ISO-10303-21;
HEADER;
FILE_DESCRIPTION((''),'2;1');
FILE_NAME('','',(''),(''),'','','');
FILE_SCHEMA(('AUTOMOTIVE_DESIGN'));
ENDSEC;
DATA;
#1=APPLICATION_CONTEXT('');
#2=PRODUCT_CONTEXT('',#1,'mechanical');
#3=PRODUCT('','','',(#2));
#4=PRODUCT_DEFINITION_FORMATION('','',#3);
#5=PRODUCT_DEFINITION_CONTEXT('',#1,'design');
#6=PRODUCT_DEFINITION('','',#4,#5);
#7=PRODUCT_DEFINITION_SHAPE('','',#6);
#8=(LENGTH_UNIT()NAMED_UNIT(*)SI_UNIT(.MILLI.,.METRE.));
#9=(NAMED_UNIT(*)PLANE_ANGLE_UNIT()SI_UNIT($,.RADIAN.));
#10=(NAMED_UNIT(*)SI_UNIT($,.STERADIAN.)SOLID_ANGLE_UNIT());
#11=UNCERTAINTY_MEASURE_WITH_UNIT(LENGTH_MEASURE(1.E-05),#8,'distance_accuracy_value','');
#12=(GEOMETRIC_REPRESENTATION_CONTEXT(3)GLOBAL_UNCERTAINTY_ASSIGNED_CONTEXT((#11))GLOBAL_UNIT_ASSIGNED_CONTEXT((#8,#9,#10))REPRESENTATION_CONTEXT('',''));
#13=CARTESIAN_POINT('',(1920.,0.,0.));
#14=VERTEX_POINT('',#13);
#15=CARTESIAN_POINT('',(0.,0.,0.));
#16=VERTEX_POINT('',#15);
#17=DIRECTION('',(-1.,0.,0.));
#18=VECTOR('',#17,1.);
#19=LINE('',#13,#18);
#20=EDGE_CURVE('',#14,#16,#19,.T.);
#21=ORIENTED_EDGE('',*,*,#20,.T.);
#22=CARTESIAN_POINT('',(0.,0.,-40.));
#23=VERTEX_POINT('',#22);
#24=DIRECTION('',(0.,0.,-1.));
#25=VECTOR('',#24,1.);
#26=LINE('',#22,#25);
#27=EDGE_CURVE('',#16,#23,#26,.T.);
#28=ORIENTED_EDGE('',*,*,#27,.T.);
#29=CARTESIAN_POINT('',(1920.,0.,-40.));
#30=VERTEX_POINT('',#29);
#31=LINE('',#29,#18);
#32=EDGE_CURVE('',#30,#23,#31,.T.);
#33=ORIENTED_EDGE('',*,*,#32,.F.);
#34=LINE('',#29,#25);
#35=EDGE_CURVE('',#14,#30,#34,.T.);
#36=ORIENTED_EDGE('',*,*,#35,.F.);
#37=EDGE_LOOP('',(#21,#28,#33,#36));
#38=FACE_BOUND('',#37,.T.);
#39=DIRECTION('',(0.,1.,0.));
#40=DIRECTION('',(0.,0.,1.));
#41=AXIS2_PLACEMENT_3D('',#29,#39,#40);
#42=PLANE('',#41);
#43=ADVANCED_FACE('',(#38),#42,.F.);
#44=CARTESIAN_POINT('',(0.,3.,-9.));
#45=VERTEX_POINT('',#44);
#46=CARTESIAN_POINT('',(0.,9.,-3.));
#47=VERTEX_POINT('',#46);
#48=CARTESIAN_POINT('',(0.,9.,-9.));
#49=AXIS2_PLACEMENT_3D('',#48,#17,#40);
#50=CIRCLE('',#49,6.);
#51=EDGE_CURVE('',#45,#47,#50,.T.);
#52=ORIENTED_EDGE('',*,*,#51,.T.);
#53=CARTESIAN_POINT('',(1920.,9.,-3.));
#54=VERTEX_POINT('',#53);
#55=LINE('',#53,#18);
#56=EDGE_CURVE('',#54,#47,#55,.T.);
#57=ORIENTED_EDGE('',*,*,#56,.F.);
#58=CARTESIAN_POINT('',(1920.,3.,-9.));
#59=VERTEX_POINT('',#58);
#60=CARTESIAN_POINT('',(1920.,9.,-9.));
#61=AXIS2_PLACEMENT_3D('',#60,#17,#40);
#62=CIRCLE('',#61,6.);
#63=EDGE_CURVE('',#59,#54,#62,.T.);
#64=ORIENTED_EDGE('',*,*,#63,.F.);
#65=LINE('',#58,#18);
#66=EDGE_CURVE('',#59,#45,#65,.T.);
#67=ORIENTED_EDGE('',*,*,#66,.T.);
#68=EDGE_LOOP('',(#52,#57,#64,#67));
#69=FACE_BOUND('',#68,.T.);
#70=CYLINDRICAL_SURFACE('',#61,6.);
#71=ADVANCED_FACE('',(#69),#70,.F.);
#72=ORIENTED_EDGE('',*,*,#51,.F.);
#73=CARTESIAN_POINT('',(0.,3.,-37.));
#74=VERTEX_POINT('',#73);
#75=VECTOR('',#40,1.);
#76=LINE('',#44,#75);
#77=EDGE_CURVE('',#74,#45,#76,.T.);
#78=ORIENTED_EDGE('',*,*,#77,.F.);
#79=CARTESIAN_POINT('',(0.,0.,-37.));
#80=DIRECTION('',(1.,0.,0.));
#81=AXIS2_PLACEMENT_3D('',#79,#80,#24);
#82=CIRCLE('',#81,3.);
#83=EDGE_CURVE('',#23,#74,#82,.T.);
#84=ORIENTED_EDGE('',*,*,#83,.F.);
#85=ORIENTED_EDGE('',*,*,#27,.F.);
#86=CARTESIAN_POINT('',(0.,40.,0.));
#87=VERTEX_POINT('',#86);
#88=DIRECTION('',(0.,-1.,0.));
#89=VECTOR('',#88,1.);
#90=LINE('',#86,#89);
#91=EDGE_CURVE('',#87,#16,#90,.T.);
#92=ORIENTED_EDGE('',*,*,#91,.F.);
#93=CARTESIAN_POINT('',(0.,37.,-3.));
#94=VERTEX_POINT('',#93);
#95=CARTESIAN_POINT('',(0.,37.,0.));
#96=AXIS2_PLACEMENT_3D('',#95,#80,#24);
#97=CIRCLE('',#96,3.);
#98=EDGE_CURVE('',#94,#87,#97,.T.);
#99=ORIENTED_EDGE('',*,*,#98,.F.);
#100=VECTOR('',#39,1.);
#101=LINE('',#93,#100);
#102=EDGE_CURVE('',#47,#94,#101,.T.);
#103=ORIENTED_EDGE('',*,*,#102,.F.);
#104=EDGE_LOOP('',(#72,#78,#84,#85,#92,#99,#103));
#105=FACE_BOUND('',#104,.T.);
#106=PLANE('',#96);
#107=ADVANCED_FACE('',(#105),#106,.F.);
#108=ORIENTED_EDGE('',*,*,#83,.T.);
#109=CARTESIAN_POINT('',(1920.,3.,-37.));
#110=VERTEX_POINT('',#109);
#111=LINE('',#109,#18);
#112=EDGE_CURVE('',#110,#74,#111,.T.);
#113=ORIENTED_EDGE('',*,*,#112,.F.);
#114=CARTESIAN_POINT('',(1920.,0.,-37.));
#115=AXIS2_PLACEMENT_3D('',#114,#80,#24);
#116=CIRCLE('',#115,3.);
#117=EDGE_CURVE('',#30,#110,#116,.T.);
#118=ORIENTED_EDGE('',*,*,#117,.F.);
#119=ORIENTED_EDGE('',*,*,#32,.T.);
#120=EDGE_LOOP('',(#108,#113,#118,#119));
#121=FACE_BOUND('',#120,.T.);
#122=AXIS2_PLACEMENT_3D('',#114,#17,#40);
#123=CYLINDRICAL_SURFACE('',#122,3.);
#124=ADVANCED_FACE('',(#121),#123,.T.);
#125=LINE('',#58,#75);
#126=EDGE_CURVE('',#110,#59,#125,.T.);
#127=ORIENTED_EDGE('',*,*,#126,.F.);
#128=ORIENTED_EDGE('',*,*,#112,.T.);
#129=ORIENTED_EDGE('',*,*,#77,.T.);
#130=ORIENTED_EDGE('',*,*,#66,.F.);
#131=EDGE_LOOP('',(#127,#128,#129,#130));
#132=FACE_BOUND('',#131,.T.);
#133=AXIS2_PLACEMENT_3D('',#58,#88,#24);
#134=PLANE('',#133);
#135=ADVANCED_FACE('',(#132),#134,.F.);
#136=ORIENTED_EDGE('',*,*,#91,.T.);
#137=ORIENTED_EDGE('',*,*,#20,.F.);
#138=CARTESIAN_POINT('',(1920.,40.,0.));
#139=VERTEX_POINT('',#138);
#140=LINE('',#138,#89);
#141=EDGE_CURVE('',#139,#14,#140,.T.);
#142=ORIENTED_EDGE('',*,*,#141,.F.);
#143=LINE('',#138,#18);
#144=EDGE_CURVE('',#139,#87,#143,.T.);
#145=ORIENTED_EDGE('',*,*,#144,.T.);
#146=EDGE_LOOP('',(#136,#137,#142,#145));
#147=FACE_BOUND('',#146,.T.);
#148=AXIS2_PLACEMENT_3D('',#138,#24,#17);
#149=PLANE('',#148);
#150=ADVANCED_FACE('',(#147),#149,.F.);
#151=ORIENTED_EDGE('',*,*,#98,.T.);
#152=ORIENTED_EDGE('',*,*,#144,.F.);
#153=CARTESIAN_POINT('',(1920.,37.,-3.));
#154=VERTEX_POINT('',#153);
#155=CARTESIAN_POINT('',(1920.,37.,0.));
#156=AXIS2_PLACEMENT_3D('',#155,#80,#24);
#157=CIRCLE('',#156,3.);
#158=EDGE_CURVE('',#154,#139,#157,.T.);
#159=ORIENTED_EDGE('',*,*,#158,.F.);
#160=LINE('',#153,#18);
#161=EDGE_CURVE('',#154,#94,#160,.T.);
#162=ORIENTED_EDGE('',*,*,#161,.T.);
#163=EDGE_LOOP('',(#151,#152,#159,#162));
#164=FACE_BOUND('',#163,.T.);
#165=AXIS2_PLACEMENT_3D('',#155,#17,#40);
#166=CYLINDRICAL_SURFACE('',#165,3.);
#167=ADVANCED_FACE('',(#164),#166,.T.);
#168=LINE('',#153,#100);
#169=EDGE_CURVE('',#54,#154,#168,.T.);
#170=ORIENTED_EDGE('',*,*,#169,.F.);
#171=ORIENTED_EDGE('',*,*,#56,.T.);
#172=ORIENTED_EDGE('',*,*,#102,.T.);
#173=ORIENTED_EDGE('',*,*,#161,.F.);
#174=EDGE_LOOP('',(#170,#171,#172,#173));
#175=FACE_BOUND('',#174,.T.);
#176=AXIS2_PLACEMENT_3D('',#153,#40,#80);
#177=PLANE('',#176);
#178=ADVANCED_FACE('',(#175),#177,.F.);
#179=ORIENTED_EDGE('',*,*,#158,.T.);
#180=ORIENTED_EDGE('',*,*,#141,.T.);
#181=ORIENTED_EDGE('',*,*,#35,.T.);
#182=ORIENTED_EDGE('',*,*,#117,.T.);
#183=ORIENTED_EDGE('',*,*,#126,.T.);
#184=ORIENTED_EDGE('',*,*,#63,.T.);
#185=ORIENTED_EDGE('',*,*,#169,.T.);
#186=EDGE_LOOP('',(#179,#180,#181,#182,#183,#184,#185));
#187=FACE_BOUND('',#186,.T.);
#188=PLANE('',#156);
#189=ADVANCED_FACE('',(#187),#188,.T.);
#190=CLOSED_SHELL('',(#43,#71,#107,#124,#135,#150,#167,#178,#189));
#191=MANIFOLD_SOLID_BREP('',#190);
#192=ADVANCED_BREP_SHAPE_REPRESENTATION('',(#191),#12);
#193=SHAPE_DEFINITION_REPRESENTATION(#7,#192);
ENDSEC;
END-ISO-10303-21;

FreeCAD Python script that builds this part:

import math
import FreeCAD as App
import Part
import Sketcher

V = App.Vector

doc = App.newDocument("Part")
body = doc.addObject("PartDesign::Body", "Body")

# Sketch on YZ plane
sketch1 = body.newObject("Sketcher::SketchObject", "Sketch")
sketch1.AttachmentSupport = (doc.getObject("YZ_Plane"), [""])
sketch1.MapMode = "FlatFace"
sketch1.addGeometry([
    Part.LineSegment(V(40, 0, 0), V(0, 0, 0)),  # 0
    Part.LineSegment(V(0, 0, 0), V(0, -40, 0)),  # 1
    Part.ArcOfCircle(Part.Circle(V(0, -37, 0), V(0, 0, 1), 3), math.radians(-90), math.radians(0)),  # 2
    Part.LineSegment(V(3, -37, 0), V(3, -9, 0)),  # 3
    Part.ArcOfCircle(Part.Circle(V(9, -9, 0), V(0, 0, 1), 6), math.radians(90), math.radians(180)),  # 4
    Part.LineSegment(V(9, -3, 0), V(37, -3, 0)),  # 5
    Part.ArcOfCircle(Part.Circle(V(37, 0, 0), V(0, 0, 1), 3), math.radians(-90), math.radians(0)),  # 6
], False)
sketch1.addConstraint([
    Sketcher.Constraint("Coincident", 0, 2, 1, 1),
    Sketcher.Constraint("Coincident", 1, 2, 2, 1),
    Sketcher.Constraint("Tangent", 2, 2, 3, 1),
    Sketcher.Constraint("Tangent", 3, 2, 4, 2),
    Sketcher.Constraint("Tangent", 4, 1, 5, 1),
    Sketcher.Constraint("Tangent", 5, 2, 6, 1),
    Sketcher.Constraint("Coincident", 6, 2, 0, 1),
    Sketcher.Constraint("Horizontal", 0),
    Sketcher.Constraint("Vertical", 1),
    Sketcher.Constraint("Vertical", 3),
    Sketcher.Constraint("Horizontal", 5),
    Sketcher.Constraint("Coincident", 0, 2, -1, 1),
    Sketcher.Constraint("Equal", 2, 6),
    Sketcher.Constraint("PointOnObject", 2, 3, -2),
    Sketcher.Constraint("PointOnObject", 6, 3, -1),
    Sketcher.Constraint("Equal", 0, 1),
    Sketcher.Constraint("Radius", 2, 3.0),
    Sketcher.Constraint("Radius", 4, 6.0),
    Sketcher.Constraint("DistanceX", 0, 2, 0, 1, 40.0),
])
pad1 = body.newObject("PartDesign::Pad", "Pad")
pad1.Profile = sketch1
pad1.Length = 1920

doc.recompute()
